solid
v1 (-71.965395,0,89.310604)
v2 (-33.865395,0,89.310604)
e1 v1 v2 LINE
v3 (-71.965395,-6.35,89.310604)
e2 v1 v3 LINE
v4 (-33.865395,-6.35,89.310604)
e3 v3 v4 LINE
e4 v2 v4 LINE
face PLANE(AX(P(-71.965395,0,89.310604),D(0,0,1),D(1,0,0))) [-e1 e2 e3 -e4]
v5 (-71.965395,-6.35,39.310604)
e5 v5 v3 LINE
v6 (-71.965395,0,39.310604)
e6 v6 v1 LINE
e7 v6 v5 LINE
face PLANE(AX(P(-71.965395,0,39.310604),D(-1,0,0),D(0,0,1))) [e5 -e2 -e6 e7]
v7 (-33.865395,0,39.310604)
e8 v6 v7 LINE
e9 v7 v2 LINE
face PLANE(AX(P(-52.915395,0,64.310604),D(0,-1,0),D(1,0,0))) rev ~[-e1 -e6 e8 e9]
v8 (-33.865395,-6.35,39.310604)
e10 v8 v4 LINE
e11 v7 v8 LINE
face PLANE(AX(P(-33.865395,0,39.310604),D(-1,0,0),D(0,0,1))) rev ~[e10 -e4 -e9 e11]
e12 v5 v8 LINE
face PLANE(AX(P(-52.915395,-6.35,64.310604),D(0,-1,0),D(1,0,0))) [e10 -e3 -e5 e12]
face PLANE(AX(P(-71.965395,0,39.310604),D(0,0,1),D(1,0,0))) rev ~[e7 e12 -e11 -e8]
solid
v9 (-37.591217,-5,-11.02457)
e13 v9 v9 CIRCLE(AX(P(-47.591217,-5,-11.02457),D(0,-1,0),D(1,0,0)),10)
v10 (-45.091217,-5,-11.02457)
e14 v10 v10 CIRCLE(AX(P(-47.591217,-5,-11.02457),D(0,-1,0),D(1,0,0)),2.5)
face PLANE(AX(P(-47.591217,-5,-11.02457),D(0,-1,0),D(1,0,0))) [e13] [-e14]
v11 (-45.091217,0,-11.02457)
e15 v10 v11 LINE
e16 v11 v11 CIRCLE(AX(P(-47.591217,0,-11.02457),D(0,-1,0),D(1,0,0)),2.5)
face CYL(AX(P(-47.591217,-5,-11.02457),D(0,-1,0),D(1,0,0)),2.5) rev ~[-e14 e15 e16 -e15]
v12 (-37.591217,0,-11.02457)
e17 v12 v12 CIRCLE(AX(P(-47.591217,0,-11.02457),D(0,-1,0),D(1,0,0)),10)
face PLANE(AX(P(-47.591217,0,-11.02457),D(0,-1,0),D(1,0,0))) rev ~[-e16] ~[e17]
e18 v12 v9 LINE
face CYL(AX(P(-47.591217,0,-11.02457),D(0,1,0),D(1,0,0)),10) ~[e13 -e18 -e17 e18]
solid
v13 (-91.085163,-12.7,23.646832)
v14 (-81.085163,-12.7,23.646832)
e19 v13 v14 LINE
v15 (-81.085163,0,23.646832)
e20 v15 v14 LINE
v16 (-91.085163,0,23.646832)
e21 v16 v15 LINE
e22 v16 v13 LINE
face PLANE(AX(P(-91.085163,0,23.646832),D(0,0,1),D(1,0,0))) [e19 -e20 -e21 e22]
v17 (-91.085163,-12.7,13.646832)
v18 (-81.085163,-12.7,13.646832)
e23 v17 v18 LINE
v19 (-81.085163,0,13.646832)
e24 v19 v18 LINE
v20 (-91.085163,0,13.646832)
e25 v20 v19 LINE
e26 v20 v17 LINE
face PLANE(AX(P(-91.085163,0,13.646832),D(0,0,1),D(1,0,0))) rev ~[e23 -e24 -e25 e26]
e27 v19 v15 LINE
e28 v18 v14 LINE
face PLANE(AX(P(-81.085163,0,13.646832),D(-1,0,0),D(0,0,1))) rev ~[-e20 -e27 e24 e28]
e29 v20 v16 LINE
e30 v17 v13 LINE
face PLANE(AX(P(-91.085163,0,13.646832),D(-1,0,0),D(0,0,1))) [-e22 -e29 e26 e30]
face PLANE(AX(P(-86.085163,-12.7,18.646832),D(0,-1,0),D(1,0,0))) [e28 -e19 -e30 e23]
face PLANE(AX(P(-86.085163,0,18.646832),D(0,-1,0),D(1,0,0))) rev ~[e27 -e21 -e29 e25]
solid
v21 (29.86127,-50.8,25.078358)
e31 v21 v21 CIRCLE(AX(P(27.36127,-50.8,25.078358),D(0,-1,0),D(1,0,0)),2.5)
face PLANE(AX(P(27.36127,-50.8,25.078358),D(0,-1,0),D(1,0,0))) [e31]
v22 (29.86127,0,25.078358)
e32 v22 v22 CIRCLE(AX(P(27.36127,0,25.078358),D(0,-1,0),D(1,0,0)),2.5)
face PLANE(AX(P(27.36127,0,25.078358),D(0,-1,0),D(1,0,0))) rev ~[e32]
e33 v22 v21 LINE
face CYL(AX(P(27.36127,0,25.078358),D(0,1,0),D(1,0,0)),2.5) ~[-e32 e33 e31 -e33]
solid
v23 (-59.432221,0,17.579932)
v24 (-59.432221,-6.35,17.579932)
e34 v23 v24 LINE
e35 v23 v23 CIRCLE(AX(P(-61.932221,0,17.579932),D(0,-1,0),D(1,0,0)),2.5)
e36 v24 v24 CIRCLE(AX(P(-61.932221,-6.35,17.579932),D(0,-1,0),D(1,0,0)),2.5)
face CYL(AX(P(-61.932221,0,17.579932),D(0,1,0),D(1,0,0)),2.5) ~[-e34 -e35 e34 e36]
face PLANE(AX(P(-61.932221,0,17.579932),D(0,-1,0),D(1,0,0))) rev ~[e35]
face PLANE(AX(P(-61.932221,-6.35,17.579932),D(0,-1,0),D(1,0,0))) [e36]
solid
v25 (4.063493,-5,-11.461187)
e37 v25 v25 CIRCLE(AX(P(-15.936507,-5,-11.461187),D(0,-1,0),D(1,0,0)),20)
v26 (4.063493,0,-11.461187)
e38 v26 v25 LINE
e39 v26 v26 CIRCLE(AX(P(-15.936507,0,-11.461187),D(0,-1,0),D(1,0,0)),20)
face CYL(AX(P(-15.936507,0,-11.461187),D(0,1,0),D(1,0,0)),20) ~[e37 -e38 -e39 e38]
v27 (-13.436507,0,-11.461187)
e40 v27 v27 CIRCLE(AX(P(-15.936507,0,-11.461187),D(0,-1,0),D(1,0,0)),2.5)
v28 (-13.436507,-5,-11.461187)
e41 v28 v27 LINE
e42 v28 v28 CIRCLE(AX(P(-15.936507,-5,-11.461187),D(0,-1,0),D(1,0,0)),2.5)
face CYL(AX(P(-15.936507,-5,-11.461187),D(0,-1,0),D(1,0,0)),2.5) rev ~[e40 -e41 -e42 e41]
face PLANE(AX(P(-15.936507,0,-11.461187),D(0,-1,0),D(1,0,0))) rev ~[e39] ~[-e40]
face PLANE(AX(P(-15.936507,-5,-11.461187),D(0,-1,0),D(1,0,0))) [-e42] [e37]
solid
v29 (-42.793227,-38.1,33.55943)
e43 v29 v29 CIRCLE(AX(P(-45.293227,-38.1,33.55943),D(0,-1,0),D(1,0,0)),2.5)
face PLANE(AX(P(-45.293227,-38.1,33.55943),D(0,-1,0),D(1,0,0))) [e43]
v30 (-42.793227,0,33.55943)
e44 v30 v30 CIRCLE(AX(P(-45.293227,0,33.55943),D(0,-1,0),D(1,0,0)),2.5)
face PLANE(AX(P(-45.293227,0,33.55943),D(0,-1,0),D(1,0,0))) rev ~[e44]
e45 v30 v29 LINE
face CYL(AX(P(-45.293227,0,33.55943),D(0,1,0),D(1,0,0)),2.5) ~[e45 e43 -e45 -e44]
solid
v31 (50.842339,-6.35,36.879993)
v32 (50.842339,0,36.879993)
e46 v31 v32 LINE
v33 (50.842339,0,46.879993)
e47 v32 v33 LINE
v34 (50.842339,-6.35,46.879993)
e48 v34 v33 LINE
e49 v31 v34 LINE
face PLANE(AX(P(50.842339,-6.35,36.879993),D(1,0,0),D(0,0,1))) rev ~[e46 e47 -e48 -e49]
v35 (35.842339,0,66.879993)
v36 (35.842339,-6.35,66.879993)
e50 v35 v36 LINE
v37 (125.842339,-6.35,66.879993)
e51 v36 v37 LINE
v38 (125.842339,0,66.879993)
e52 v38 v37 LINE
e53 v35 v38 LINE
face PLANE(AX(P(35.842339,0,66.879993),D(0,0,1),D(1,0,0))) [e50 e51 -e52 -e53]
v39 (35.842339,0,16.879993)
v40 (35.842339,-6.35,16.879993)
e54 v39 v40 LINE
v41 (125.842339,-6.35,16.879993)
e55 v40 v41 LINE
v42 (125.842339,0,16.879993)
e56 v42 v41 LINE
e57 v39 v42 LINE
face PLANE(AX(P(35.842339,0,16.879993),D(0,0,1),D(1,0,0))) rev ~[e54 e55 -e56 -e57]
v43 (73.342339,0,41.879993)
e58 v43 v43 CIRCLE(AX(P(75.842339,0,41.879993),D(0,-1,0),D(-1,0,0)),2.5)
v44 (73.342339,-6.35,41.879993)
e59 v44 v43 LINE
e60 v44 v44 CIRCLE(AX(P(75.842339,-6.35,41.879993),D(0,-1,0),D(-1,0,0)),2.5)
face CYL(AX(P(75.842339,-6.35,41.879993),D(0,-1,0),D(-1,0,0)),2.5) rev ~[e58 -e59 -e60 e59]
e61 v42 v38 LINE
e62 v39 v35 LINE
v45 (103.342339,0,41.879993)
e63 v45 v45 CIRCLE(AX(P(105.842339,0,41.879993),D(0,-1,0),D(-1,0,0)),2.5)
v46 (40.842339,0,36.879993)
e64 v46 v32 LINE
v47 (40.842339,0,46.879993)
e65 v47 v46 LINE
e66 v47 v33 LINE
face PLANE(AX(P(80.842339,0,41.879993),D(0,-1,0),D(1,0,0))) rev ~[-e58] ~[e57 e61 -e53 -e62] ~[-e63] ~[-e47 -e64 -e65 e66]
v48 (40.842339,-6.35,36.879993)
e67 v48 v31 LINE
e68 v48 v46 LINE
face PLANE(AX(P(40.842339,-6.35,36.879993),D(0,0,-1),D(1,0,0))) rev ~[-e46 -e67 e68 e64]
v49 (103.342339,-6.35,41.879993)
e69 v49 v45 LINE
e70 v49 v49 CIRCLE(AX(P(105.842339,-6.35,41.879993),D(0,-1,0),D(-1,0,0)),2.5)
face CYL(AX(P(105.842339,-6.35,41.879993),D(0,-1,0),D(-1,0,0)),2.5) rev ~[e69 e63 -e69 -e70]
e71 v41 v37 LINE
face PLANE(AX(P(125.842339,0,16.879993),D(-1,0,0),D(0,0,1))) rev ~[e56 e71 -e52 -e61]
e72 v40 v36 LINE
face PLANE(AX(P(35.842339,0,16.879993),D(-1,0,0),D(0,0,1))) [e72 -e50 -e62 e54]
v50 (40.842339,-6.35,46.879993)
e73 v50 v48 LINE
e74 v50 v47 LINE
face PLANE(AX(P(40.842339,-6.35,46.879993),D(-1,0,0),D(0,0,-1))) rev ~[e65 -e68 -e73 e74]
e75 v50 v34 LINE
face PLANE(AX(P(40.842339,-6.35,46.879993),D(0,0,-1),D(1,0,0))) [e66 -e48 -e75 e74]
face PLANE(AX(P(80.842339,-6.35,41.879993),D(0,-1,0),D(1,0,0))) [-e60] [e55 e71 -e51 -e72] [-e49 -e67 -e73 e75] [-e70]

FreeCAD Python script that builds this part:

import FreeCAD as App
import Part
import Sketcher

V = App.Vector


def add_polygon(sketch, points):
    """Adds a closed chain of lines whose ends are joined by coincident constraints."""
    first, n = sketch.GeometryCount, len(points)
    for a, b in zip(points, points[1:] + points[:1]):
        sketch.addGeometry(Part.LineSegment(App.Vector(*a, 0), App.Vector(*b, 0)), False)
    for i in range(n):
        sketch.addConstraint(Sketcher.Constraint("Coincident", first + i, 2, first + (i + 1) % n, 1))

doc = App.newDocument("Part")
params = doc.addObject("Spreadsheet::Sheet", "Params")
for row, (alias, value) in enumerate([
    ("sketch1_diameter", "20 mm"),
    ("pad1_length", "5 mm"),
    ("sketch2_diameter", "5 mm"),
    ("sketch3_diameter", "40 mm"),
    ("pad2_length", "5 mm"),
    ("sketch4_diameter", "5 mm"),
    ("sketch5_diameter", "5 mm"),
    ("pad3_length", "38.1 mm"),
    ("sketch6_diameter", "5 mm"),
    ("pad4_length", "50.8 mm"),
    ("sketch7_height", "50 mm"),
    ("sketch7_width", "38.1 mm"),
    ("pad5_length", "6.35 mm"),
    ("sketch8_width", "90 mm"),
    ("sketch8_height", "50 mm"),
    ("pad6_length", "6.35 mm"),
    ("sketch9_diameter", "5 mm"),
    ("sketch9_width", "10 mm"),
    ("sketch10_width", "10 mm"),
    ("pad7_length", "12.7 mm"),
    ("sketch11_diameter", "5 mm"),
    ("pad8_length", "6.35 mm"),
], start=1):
    params.set(f"A{row}", alias)
    params.set(f"B{row}", "=" + value)
    params.setAlias(f"B{row}", alias)

body = doc.addObject("PartDesign::Body", "Body")

sketch1 = body.newObject("Sketcher::SketchObject", "Sketch")
sketch1.AttachmentSupport = (doc.getObject("XZ_Plane"), [""])
sketch1.MapMode = "FlatFace"
sketch1.addGeometry(Part.Circle(V(-47.591217, -11.02457, 0), V(0, 0, 1), 10), False)
sketch1.addConstraint(Sketcher.Constraint("Diameter", 0, 20.0))
sketch1.addConstraint(Sketcher.Constraint("DistanceY", 0, 3, -1, 1, 11.02457))
sketch1.addConstraint(Sketcher.Constraint("DistanceX", 0, 3, -1, 1, 47.591217))
sketch1.setExpression("Constraints[0]", "Params.sketch1_diameter")
pad1 = body.newObject("PartDesign::Pad", "Pad")
pad1.Profile = sketch1
pad1.setExpression("Length", "Params.pad1_length")

sketch2 = body.newObject("Sketcher::SketchObject", "Sketch001")
sketch2.AttachmentSupport = (doc.getObject("XZ_Plane"), [""])
sketch2.MapMode = "FlatFace"
sketch2.AttachmentOffset = App.Placement(V(0, 0, 5), App.Rotation())
sketch2.addGeometry(Part.Circle(V(-47.591217, -11.02457, 0), V(0, 0, 1), 2.5), False)
sketch2.addConstraint(Sketcher.Constraint("Diameter", 0, 5.0))
sketch2.addConstraint(Sketcher.Constraint("DistanceY", 0, 3, -1, 1, 11.02457))
sketch2.addConstraint(Sketcher.Constraint("DistanceX", 0, 3, -1, 1, 47.591217))
sketch2.setExpression("Constraints[0]", "Params.sketch2_diameter")
pocket1 = body.newObject("PartDesign::Pocket", "Pocket")
pocket1.Profile = sketch2
pocket1.Type = "ThroughAll"
body2 = doc.addObject("PartDesign::Body", "Body001")

sketch3 = body2.newObject("Sketcher::SketchObject", "Sketch002")
sketch3.AttachmentSupport = (doc.getObject("XZ_Plane001"), [""])
sketch3.MapMode = "FlatFace"
sketch3.addGeometry(Part.Circle(V(-15.936507, -11.461187, 0), V(0, 0, 1), 20), False)
sketch3.addConstraint(Sketcher.Constraint("Diameter", 0, 40.0))
sketch3.addConstraint(Sketcher.Constraint("DistanceX", 0, 3, -1, 1, 15.936507))
sketch3.addConstraint(Sketcher.Constraint("DistanceY", 0, 3, -1, 1, 11.461187))
sketch3.setExpression("Constraints[0]", "Params.sketch3_diameter")
pad2 = body2.newObject("PartDesign::Pad", "Pad001")
pad2.Profile = sketch3
pad2.setExpression("Length", "Params.pad2_length")

sketch4 = body2.newObject("Sketcher::SketchObject", "Sketch003")
sketch4.AttachmentSupport = (doc.getObject("XZ_Plane001"), [""])
sketch4.MapMode = "FlatFace"
sketch4.AttachmentOffset = App.Placement(V(0, 0, 5), App.Rotation())
sketch4.addGeometry(Part.Circle(V(-15.936507, -11.461187, 0), V(0, 0, 1), 2.5), False)
sketch4.addConstraint(Sketcher.Constraint("Diameter", 0, 5.0))
sketch4.addConstraint(Sketcher.Constraint("DistanceX", 0, 3, -1, 1, 15.936507))
sketch4.addConstraint(Sketcher.Constraint("DistanceY", 0, 3, -1, 1, 11.461187))
sketch4.setExpression("Constraints[0]", "Params.sketch4_diameter")
pocket2 = body2.newObject("PartDesign::Pocket", "Pocket001")
pocket2.Profile = sketch4
pocket2.Type = "ThroughAll"
body3 = doc.addObject("PartDesign::Body", "Body002")

sketch5 = body3.newObject("Sketcher::SketchObject", "Sketch004")
sketch5.AttachmentSupport = (doc.getObject("XZ_Plane002"), [""])
sketch5.MapMode = "FlatFace"
sketch5.addGeometry(Part.Circle(V(-45.293227, 33.55943, 0), V(0, 0, 1), 2.5), False)
sketch5.addConstraint(Sketcher.Constraint("Diameter", 0, 5.0))
sketch5.addConstraint(Sketcher.Constraint("DistanceY", -1, 1, 0, 3, 33.55943))
sketch5.addConstraint(Sketcher.Constraint("DistanceX", 0, 3, -1, 1, 45.293227))
sketch5.setExpression("Constraints[0]", "Params.sketch5_diameter")
pad3 = body3.newObject("PartDesign::Pad", "Pad002")
pad3.Profile = sketch5
pad3.setExpression("Length", "Params.pad3_length")
body4 = doc.addObject("PartDesign::Body", "Body003")

sketch6 = body4.newObject("Sketcher::SketchObject", "Sketch005")
sketch6.AttachmentSupport = (doc.getObject("XZ_Plane003"), [""])
sketch6.MapMode = "FlatFace"
sketch6.addGeometry(Part.Circle(V(27.36127, 25.078358, 0), V(0, 0, 1), 2.5), False)
sketch6.addConstraint(Sketcher.Constraint("Diameter", 0, 5.0))
sketch6.addConstraint(Sketcher.Constraint("DistanceX", -1, 1, 0, 3, 27.36127))
sketch6.addConstraint(Sketcher.Constraint("DistanceY", -1, 1, 0, 3, 25.078358))
sketch6.setExpression("Constraints[0]", "Params.sketch6_diameter")
pad4 = body4.newObject("PartDesign::Pad", "Pad003")
pad4.Profile = sketch6
pad4.setExpression("Length", "Params.pad4_length")
body5 = doc.addObject("PartDesign::Body", "Body004")

sketch7 = body5.newObject("Sketcher::SketchObject", "Sketch006")
sketch7.AttachmentSupport = (doc.getObject("XZ_Plane004"), [""])
sketch7.MapMode = "FlatFace"
add_polygon(sketch7, [(-71.965395, 89.310604), (-71.965395, 39.310604), (-33.865395, 39.310604), (-33.865395, 89.310604)])
sketch7.addConstraint(Sketcher.Constraint("Vertical", 0))
sketch7.addConstraint(Sketcher.Constraint("Horizontal", 1))
sketch7.addConstraint(Sketcher.Constraint("Vertical", 2))
sketch7.addConstraint(Sketcher.Constraint("Horizontal", 3))
sketch7.addConstraint(Sketcher.Constraint("DistanceY", 0, 2, 0, 1, 50.0))
sketch7.addConstraint(Sketcher.Constraint("DistanceX", 1, 1, 1, 2, 38.1))
sketch7.addConstraint(Sketcher.Constraint("DistanceX", 0, 2, -1, 1, 71.965395))
sketch7.addConstraint(Sketcher.Constraint("DistanceY", -1, 1, 0, 2, 39.310604))
sketch7.setExpression("Constraints[8]", "Params.sketch7_height")
sketch7.setExpression("Constraints[9]", "Params.sketch7_width")
pad5 = body5.newObject("PartDesign::Pad", "Pad004")
pad5.Profile = sketch7
pad5.setExpression("Length", "Params.pad5_length")
body6 = doc.addObject("PartDesign::Body", "Body005")

sketch8 = body6.newObject("Sketcher::SketchObject", "Sketch007")
sketch8.AttachmentSupport = (doc.getObject("XZ_Plane005"), [""])
sketch8.MapMode = "FlatFace"
add_polygon(sketch8, [(35.842339, 66.879993), (35.842339, 16.879993), (125.842339, 16.879993), (125.842339, 66.879993)])
sketch8.addConstraint(Sketcher.Constraint("Vertical", 0))
sketch8.addConstraint(Sketcher.Constraint("Horizontal", 1))
sketch8.addConstraint(Sketcher.Constraint("Vertical", 2))
sketch8.addConstraint(Sketcher.Constraint("Horizontal", 3))
sketch8.addConstraint(Sketcher.Constraint("DistanceX", 1, 1, 1, 2, 90.0))
sketch8.addConstraint(Sketcher.Constraint("DistanceY", 0, 2, 0, 1, 50.0))
sketch8.addConstraint(Sketcher.Constraint("DistanceX", -1, 1, 0, 2, 35.842339))
sketch8.addConstraint(Sketcher.Constraint("DistanceY", -1, 1, 0, 2, 16.879993))
sketch8.setExpression("Constraints[8]", "Params.sketch8_width")
sketch8.setExpression("Constraints[9]", "Params.sketch8_height")
pad6 = body6.newObject("PartDesign::Pad", "Pad005")
pad6.Profile = sketch8
pad6.setExpression("Length", "Params.pad6_length")

sketch9 = body6.newObject("Sketcher::SketchObject", "Sketch008")
sketch9.AttachmentSupport = (doc.getObject("XZ_Plane005"), [""])
sketch9.MapMode = "FlatFace"
sketch9.AttachmentOffset = App.Placement(V(0, 0, 6.35), App.Rotation())
sketch9.addGeometry(Part.Circle(V(75.842339, 41.879993, 0), V(0, 0, 1), 2.5), False)
sketch9.addGeometry(Part.Circle(V(105.842339, 41.879993, 0), V(0, 0, 1), 2.5), False)
add_polygon(sketch9, [(40.842339, 36.879993), (50.842339, 36.879993), (50.842339, 46.879993), (40.842339, 46.879993)])
sketch9.addConstraint(Sketcher.Constraint("Horizontal", 2))
sketch9.addConstraint(Sketcher.Constraint("Vertical", 3))
sketch9.addConstraint(Sketcher.Constraint("Horizontal", 4))
sketch9.addConstraint(Sketcher.Constraint("Vertical", 5))
sketch9.addConstraint(Sketcher.Constraint("Equal", 0, 1))
sketch9.addConstraint(Sketcher.Constraint("Horizontal", 0, 3, 1, 3))
sketch9.addConstraint(Sketcher.Constraint("Equal", 4, 3))
sketch9.addConstraint(Sketcher.Constraint("Diameter", 0, 5.0))
sketch9.addConstraint(Sketcher.Constraint("DistanceX", 2, 1, 2, 2, 10.0))
sketch9.addConstraint(Sketcher.Constraint("DistanceX", 0, 3, 1, 3, 30.0))
sketch9.addConstraint(Sketcher.Constraint("DistanceX", 2, 2, 0, 3, 25.0))
sketch9.addConstraint(Sketcher.Constraint("DistanceY", 2, 2, 0, 3, 5.0))
sketch9.addConstraint(Sketcher.Constraint("DistanceX", -1, 1, 0, 3, 75.842339))
sketch9.addConstraint(Sketcher.Constraint("DistanceY", -1, 1, 0, 3, 41.879993))
sketch9.setExpression("Constraints[11]", "Params.sketch9_diameter")
sketch9.setExpression("Constraints[12]", "Params.sketch9_width")
pocket3 = body6.newObject("PartDesign::Pocket", "Pocket002")
pocket3.Profile = sketch9
pocket3.Type = "ThroughAll"
body7 = doc.addObject("PartDesign::Body", "Body006")

sketch10 = body7.newObject("Sketcher::SketchObject", "Sketch009")
sketch10.AttachmentSupport = (doc.getObject("XZ_Plane006"), [""])
sketch10.MapMode = "FlatFace"
add_polygon(sketch10, [(-91.085163, 23.646832), (-91.085163, 13.646832), (-81.085163, 13.646832), (-81.085163, 23.646832)])
sketch10.addConstraint(Sketcher.Constraint("Vertical", 0))
sketch10.addConstraint(Sketcher.Constraint("Horizontal", 1))
sketch10.addConstraint(Sketcher.Constraint("Vertical", 2))
sketch10.addConstraint(Sketcher.Constraint("Horizontal", 3))
sketch10.addConstraint(Sketcher.Constraint("Equal", 3, 0))
sketch10.addConstraint(Sketcher.Constraint("DistanceX", 1, 1, 1, 2, 10.0))
sketch10.addConstraint(Sketcher.Constraint("DistanceY", -1, 1, 0, 2, 13.646832))
sketch10.addConstraint(Sketcher.Constraint("DistanceX", 0, 2, -1, 1, 91.085163))
sketch10.setExpression("Constraints[9]", "Params.sketch10_width")
pad7 = body7.newObject("PartDesign::Pad", "Pad006")
pad7.Profile = sketch10
pad7.setExpression("Length", "Params.pad7_length")
body8 = doc.addObject("PartDesign::Body", "Body007")

sketch11 = body8.newObject("Sketcher::SketchObject", "Sketch010")
sketch11.AttachmentSupport = (doc.getObject("XZ_Plane007"), [""])
sketch11.MapMode = "FlatFace"
sketch11.addGeometry(Part.Circle(V(-61.932221, 17.579932, 0), V(0, 0, 1), 2.5), False)
sketch11.addConstraint(Sketcher.Constraint("Diameter", 0, 5.0))
sketch11.addConstraint(Sketcher.Constraint("DistanceX", 0, 3, -1, 1, 61.932221))
sketch11.addConstraint(Sketcher.Constraint("DistanceY", -1, 1, 0, 3, 17.579932))
sketch11.setExpression("Constraints[0]", "Params.sketch11_diameter")
pad8 = body8.newObject("PartDesign::Pad", "Pad007")
pad8.Profile = sketch11
pad8.setExpression("Length", "Params.pad8_length")

doc.recompute()
